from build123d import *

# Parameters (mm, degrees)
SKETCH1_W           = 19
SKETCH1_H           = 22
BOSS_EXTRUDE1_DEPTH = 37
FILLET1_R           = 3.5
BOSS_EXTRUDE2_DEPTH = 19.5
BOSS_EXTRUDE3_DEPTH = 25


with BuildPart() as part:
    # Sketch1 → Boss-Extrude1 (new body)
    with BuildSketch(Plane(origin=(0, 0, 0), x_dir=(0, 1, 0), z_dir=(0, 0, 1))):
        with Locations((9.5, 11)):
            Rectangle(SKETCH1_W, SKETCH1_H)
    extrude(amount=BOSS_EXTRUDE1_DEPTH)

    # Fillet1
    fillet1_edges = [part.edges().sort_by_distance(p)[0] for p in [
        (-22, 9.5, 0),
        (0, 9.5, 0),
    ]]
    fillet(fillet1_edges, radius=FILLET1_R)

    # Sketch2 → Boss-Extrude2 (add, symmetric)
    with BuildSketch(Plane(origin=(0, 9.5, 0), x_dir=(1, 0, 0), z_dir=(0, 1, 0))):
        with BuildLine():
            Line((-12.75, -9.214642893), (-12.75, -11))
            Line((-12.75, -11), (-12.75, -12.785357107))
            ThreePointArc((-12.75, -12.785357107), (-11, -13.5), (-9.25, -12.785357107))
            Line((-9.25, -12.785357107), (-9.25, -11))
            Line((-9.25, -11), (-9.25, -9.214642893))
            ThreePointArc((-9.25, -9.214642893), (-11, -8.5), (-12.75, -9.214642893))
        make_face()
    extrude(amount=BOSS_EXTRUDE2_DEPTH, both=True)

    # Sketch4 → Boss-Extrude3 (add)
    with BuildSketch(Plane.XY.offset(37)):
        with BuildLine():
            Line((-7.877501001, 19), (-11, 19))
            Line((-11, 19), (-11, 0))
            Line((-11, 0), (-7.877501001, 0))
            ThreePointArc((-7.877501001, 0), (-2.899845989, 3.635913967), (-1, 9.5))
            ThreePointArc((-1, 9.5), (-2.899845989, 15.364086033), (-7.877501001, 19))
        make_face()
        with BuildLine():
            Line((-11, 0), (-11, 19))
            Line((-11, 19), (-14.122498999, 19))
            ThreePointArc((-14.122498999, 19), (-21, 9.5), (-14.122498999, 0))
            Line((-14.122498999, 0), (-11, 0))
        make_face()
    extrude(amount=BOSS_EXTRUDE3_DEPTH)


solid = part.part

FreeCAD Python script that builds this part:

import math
import FreeCAD as App
import Part
import Sketcher
Q = App.Units.Quantity


def edges_at(feature, points):
    """Names of the edges that pass closest to the given points."""
    edges = feature.Shape.Edges
    near = lambda p: min(range(len(edges)), key=lambda i: edges[i].distToShape(Part.Vertex(*p))[0])
    return sorted({f"Edge{near(p) + 1}" for p in points})


def add_polygon(sketch, points):
    """Adds a closed chain of lines whose ends are joined by coincident constraints."""
    first, n = sketch.GeometryCount, len(points)
    for a, b in zip(points, points[1:] + points[:1]):
        sketch.addGeometry(Part.LineSegment(App.Vector(*a, 0), App.Vector(*b, 0)), False)
    for i in range(n):
        sketch.addConstraint(Sketcher.Constraint("Coincident", first + i, 2, first + (i + 1) % n, 1))

doc = App.newDocument("Part")
body = doc.addObject("PartDesign::Body", "Body")

# Sketch on XY plane
sketch1 = body.newObject("Sketcher::SketchObject", "Sketch")
sketch1.AttachmentSupport = (doc.getObject("XY_Plane"), [""])
sketch1.MapMode = "FlatFace"
add_polygon(sketch1, [(-22, 0), (0, 0), (0, 19), (-22, 19)])  # lines 0-3
sketch1.addConstraint([
    Sketcher.Constraint("Horizontal", 0),
    Sketcher.Constraint("Vertical", 1),
    Sketcher.Constraint("Horizontal", 2),
    Sketcher.Constraint("Vertical", 3),
    Sketcher.Constraint("Coincident", 0, 2, -1, 1),
    Sketcher.Constraint("DistanceX", 0, 1, 0, 2, Q("22 mm")),
    Sketcher.Constraint("DistanceY", 1, 1, 1, 2, Q("19 mm")),
])
pad1 = body.newObject("PartDesign::Pad", "Pad")
pad1.Profile = sketch1
pad1.Length = 37
doc.recompute()

fillet = body.newObject("PartDesign::Fillet", "Fillet")
fillet.Base = (pad1, edges_at(pad1, [(-22, 9.5, 0), (0, 9.5, 0)]))
fillet.Radius = 3.5

# Sketch on XZ plane
sketch2 = body.newObject("Sketcher::SketchObject", "Sketch001")
sketch2.AttachmentSupport = (doc.getObject("XZ_Plane"), [""])
sketch2.MapMode = "FlatFace"
sketch2.AttachmentOffset = App.Placement(App.Vector(0, 0, -9.5), App.Rotation())
sketch2.addGeometry([
    Part.LineSegment(App.Vector(-12.8, 9.2, 0), App.Vector(-12.8, 12.8, 0)),
    Part.ArcOfCircle(Part.Circle(App.Vector(-11, 11, 0), App.Vector(0, 0, 1), 2.5), math.radians(46), math.radians(134)),
    Part.LineSegment(App.Vector(-9.2, 12.8, 0), App.Vector(-9.2, 9.2, 0)),
    Part.ArcOfCircle(Part.Circle(App.Vector(-11, 11, 0), App.Vector(0, 0, 1), 2.5), math.radians(-134), math.radians(-46)),
], False)
sketch2.addConstraint([
    Sketcher.Constraint("Coincident", 0, 2, 1, 2),
    Sketcher.Constraint("Coincident", 1, 1, 2, 1),
    Sketcher.Constraint("Coincident", 2, 2, 3, 2),
    Sketcher.Constraint("Coincident", 3, 1, 0, 1),
    Sketcher.Constraint("Vertical", 0),
    Sketcher.Constraint("Vertical", 2),
    Sketcher.Constraint("Coincident", 3, 3, 1, 3),
    Sketcher.Constraint("Equal", 1, 3),
    Sketcher.Constraint("Horizontal", 0, 2, 1, 1),
    Sketcher.Constraint("Radius", 1, Q("2.5 mm")),
    Sketcher.Constraint("DistanceX", 1, 3, -1, 1, Q("11 mm")),
    Sketcher.Constraint("DistanceY", -1, 1, 1, 3, Q("11 mm")),
    Sketcher.Constraint("DistanceX", 0, 2, 1, 1, Q("3.5 mm")),
])
pad2 = body.newObject("PartDesign::Pad", "Pad001")
pad2.Profile = sketch2
pad2.Length = 39
pad2.Midplane = True

# Sketch on XY plane
sketch3 = body.newObject("Sketcher::SketchObject", "Sketch002")
sketch3.AttachmentSupport = (doc.getObject("XY_Plane"), [""])
sketch3.MapMode = "FlatFace"
sketch3.AttachmentOffset = App.Placement(App.Vector(0, 0, 37), App.Rotation())
sketch3.addGeometry([
    Part.ArcOfCircle(Part.Circle(App.Vector(-11, 9, 0), App.Vector(0, 0, 1), 10), math.radians(-72), math.radians(0)),  # 0
    Part.ArcOfCircle(Part.Circle(App.Vector(-11, 10, 0), App.Vector(0, 0, 1), 10), math.radians(0), math.radians(72)),  # 1
    Part.LineSegment(App.Vector(-8, 19, 0), App.Vector(-14, 19, 0)),  # 2
    Part.ArcOfCircle(Part.Circle(App.Vector(-11, 10, 0), App.Vector(0, 0, 1), 10), math.radians(108), math.radians(252)),  # 3
    Part.LineSegment(App.Vector(-14, 0, 0), App.Vector(-8, 0, 0)),  # 4
], False)
sketch3.addConstraint([
    Sketcher.Constraint("Tangent", 0, 2, 1, 1),
    Sketcher.Constraint("Coincident", 1, 2, 2, 1),
    Sketcher.Constraint("Coincident", 2, 2, 3, 1),
    Sketcher.Constraint("Coincident", 3, 2, 4, 1),
    Sketcher.Constraint("Coincident", 4, 2, 0, 1),
    Sketcher.Constraint("Horizontal", 2),
    Sketcher.Constraint("Horizontal", 4),
    Sketcher.Constraint("Coincident", 3, 3, 0, 3),
    Sketcher.Constraint("Equal", 0, 1),
    Sketcher.Constraint("Equal", 1, 3),
    Sketcher.Constraint("PointOnObject", 3, 2, -1),
    Sketcher.Constraint("Horizontal", 3, 3, 0, 2),
    Sketcher.Constraint("Vertical", 2, 2, 3, 2),
    Sketcher.Constraint("Radius", 0, Q("10 mm")),
    Sketcher.Constraint("DistanceX", 0, 3, -1, 1, Q("11 mm")),
    Sketcher.Constraint("DistanceY", -1, 1, 1, 2, Q("19 mm")),
])
pad3 = body.newObject("PartDesign::Pad", "Pad002")
pad3.Profile = sketch3
pad3.Length = 25

doc.recompute()
